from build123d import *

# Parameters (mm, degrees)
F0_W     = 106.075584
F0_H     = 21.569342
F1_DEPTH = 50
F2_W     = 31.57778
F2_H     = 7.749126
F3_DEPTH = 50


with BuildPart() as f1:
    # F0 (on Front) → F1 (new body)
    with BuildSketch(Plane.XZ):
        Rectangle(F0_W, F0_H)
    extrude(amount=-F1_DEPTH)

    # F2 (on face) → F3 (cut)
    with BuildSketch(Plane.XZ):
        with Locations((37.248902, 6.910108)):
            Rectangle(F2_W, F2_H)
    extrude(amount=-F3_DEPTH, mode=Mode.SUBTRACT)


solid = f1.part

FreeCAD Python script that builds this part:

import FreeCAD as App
import Part
import Sketcher

V = App.Vector

doc = App.newDocument("Part")
body = doc.addObject("PartDesign::Body", "Body")

sketch1 = body.newObject("Sketcher::SketchObject", "Sketch")
sketch1.AttachmentSupport = (doc.getObject("XZ_Plane"), [""])
sketch1.MapMode = "FlatFace"
sketch1.addGeometry([
    Part.LineSegment(V(-53, 11, 0), V(-53, -11, 0)),
    Part.LineSegment(V(-53, -11, 0), V(53, -11, 0)),
    Part.LineSegment(V(53, -11, 0), V(53, 11, 0)),
    Part.LineSegment(V(53, 11, 0), V(-53, 11, 0)),
], False)
sketch1.addConstraint([
    Sketcher.Constraint("Coincident", 0, 2, 1, 1),
    Sketcher.Constraint("Coincident", 1, 2, 2, 1),
    Sketcher.Constraint("Coincident", 2, 2, 3, 1),
    Sketcher.Constraint("Coincident", 3, 2, 0, 1),
    Sketcher.Constraint("Vertical", 0),
    Sketcher.Constraint("Horizontal", 1),
    Sketcher.Constraint("Vertical", 2),
    Sketcher.Constraint("Horizontal", 3),
    Sketcher.Constraint("Symmetric", 0, 2, 2, 2, -1, 1),
    Sketcher.Constraint("DistanceY", 0, 2, 0, 1, 21.569342),
    Sketcher.Constraint("DistanceX", 1, 1, 1, 2, 106.075584),
])
pad1 = body.newObject("PartDesign::Pad", "Pad")
pad1.Profile = sketch1
pad1.Length = 50
pad1.Reversed = True

sketch2 = body.newObject("Sketcher::SketchObject", "Sketch001")
sketch2.AttachmentSupport = (doc.getObject("XZ_Plane"), [""])
sketch2.MapMode = "FlatFace"
sketch2.addGeometry([
    Part.LineSegment(V(21, 11, 0), V(21, 3, 0)),
    Part.LineSegment(V(21, 3, 0), V(53, 3, 0)),
    Part.LineSegment(V(53, 3, 0), V(53, 11, 0)),
    Part.LineSegment(V(53, 11, 0), V(21, 11, 0)),
], False)
sketch2.addConstraint([
    Sketcher.Constraint("Coincident", 0, 2, 1, 1),
    Sketcher.Constraint("Coincident", 1, 2, 2, 1),
    Sketcher.Constraint("Coincident", 2, 2, 3, 1),
    Sketcher.Constraint("Coincident", 3, 2, 0, 1),
    Sketcher.Constraint("Vertical", 0),
    Sketcher.Constraint("Horizontal", 1),
    Sketcher.Constraint("Vertical", 2),
    Sketcher.Constraint("Horizontal", 3),
    Sketcher.Constraint("DistanceX", 1, 1, 1, 2, 31.57778),
    Sketcher.Constraint("DistanceY", 0, 2, 0, 1, 7.749126),
    Sketcher.Constraint("DistanceX", -1, 1, 0, 2, 21.460012),
    Sketcher.Constraint("DistanceY", -1, 1, 2, 2, 10.784671),
])
pocket1 = body.newObject("PartDesign::Pocket", "Pocket")
pocket1.Profile = sketch2
pocket1.Length = 50

doc.recompute()
